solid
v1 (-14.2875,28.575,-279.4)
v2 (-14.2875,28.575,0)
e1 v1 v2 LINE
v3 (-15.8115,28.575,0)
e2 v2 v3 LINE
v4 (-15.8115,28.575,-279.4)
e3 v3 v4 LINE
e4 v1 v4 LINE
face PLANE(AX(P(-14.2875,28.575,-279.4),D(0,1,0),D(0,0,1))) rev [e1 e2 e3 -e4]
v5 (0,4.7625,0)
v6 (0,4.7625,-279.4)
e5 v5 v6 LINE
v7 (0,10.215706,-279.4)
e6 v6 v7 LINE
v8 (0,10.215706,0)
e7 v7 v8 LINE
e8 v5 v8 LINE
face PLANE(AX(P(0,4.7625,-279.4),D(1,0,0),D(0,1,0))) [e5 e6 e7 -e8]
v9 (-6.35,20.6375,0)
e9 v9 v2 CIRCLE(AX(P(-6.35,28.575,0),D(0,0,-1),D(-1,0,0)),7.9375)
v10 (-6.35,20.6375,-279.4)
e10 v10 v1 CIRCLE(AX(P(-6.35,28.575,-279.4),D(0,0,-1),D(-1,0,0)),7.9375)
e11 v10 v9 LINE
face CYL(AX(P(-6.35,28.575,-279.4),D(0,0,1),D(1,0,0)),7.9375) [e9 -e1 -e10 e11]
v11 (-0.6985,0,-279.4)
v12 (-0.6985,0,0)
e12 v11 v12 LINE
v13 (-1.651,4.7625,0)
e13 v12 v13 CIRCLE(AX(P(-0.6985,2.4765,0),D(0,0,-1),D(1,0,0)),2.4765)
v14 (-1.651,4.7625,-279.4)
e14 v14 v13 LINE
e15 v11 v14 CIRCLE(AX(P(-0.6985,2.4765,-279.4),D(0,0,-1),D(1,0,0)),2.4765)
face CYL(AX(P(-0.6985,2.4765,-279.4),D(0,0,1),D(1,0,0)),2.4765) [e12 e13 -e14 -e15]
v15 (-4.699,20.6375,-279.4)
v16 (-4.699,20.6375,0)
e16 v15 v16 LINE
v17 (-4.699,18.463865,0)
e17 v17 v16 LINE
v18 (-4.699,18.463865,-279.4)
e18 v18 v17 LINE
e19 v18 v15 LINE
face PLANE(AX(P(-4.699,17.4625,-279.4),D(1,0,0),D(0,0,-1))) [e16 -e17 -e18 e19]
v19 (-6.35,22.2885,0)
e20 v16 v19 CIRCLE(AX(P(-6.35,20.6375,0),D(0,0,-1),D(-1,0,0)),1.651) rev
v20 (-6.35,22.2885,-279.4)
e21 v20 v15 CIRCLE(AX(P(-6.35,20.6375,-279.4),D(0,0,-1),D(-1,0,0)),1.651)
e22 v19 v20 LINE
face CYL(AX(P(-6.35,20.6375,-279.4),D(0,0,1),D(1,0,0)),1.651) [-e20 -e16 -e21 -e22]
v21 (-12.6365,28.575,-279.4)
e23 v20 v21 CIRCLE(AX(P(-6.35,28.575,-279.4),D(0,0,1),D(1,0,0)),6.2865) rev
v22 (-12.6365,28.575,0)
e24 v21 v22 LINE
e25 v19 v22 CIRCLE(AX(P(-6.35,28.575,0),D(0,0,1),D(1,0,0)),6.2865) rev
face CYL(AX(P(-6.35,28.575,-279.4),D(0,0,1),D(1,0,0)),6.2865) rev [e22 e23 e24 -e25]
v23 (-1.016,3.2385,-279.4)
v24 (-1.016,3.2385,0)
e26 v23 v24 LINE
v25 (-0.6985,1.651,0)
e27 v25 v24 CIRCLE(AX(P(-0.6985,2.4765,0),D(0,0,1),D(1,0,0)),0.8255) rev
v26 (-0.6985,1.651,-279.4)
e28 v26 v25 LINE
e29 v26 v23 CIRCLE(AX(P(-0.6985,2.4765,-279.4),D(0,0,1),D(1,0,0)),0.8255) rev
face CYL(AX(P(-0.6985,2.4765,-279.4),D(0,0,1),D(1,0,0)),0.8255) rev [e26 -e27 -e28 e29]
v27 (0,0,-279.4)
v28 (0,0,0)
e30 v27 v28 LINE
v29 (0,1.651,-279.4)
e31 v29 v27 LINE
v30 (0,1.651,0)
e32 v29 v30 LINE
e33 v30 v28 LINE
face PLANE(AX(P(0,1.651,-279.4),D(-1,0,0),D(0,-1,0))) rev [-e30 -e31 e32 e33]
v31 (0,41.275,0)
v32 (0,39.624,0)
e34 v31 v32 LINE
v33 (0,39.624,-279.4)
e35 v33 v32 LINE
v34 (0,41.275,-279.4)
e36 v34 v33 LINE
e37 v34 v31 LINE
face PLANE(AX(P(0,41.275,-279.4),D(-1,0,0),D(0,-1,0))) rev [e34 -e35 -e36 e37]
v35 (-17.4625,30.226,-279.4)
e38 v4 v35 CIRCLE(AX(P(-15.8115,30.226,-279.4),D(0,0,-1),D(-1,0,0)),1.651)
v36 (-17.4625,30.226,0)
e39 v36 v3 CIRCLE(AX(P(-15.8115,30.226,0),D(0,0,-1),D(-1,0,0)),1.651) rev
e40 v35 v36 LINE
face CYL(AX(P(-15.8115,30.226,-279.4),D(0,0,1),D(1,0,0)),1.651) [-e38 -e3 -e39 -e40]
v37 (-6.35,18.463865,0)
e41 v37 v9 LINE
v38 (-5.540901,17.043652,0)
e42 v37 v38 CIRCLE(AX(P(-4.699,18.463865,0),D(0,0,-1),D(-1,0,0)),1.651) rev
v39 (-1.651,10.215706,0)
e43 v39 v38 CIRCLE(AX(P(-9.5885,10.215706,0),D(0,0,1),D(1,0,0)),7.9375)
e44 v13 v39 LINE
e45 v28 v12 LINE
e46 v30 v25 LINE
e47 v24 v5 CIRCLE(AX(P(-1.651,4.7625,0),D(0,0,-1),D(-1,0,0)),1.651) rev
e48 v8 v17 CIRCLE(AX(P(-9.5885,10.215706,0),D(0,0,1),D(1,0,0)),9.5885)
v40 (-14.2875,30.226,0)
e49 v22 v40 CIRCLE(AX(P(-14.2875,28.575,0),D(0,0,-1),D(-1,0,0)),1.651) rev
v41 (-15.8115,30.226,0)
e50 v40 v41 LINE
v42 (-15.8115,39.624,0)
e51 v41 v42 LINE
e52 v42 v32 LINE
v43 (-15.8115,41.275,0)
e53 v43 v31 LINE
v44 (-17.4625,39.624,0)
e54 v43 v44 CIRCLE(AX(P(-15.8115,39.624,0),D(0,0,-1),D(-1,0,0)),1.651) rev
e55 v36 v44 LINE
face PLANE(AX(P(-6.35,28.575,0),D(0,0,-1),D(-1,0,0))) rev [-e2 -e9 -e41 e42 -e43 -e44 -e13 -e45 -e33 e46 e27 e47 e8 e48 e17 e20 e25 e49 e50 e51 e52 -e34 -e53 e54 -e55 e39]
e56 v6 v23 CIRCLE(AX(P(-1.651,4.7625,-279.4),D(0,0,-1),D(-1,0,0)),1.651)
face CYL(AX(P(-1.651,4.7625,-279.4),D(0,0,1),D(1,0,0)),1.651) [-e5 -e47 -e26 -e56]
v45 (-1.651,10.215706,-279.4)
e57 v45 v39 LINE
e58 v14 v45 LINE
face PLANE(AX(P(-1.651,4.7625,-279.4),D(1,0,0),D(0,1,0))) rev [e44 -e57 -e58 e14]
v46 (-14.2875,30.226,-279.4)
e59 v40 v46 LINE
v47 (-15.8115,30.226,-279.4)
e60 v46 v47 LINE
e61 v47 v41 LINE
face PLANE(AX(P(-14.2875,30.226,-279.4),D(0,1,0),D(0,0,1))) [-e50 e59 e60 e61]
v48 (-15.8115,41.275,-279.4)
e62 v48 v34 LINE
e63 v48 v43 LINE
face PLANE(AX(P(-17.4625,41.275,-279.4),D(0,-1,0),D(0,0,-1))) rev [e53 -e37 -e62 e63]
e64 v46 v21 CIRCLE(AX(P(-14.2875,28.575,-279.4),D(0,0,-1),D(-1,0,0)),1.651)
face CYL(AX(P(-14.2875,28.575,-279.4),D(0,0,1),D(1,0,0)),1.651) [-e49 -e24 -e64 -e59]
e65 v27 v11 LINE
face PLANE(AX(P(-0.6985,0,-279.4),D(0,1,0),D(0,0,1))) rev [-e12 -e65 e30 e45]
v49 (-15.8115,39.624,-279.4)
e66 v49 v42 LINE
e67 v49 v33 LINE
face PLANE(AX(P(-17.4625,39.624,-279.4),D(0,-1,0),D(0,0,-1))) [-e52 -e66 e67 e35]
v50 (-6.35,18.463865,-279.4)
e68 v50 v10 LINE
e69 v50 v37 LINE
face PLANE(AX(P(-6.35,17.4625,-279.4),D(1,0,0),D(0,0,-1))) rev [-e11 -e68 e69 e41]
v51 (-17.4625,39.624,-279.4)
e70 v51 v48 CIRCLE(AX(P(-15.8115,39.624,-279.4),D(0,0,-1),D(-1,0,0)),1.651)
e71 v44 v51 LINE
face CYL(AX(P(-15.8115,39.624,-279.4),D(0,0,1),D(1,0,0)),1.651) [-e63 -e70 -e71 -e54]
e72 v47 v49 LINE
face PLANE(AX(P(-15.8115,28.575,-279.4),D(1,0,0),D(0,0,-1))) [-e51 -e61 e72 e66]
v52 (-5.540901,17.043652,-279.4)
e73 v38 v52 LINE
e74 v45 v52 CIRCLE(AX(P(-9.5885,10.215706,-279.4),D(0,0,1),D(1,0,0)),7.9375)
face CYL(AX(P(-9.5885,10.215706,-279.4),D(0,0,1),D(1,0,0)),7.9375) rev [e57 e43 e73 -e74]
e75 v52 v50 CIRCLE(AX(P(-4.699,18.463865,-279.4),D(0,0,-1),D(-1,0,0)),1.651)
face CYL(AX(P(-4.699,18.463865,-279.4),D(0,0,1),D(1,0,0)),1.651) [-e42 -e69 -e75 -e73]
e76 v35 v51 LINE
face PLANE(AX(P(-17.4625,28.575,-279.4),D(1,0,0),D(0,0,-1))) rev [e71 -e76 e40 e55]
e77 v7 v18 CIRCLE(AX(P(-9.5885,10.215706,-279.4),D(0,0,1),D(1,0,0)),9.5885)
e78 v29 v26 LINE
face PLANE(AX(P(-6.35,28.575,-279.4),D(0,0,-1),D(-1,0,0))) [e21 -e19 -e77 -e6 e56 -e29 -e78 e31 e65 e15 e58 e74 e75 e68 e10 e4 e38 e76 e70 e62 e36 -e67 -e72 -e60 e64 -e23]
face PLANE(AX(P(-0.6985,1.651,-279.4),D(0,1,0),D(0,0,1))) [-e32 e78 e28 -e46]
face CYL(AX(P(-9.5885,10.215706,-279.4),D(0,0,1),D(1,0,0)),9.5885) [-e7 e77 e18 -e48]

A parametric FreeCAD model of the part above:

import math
import FreeCAD as App
import Part
import Sketcher

V = App.Vector
Q = App.Units.Quantity


def edges_at(feature, points):
    """Names of the edges that pass closest to the given points."""
    edges = feature.Shape.Edges
    near = lambda p: min(range(len(edges)), key=lambda i: edges[i].distToShape(Part.Vertex(*p))[0])
    return sorted({f"Edge{near(p) + 1}" for p in points})

doc = App.newDocument("Part")
params = doc.addObject("Spreadsheet::Sheet", "Params")
for row, (alias, value) in enumerate([
    ("sketch1_height", "0.5 in"),
    ("sketch1_radius", "0.3125 in"),
    ("sketch1_height2", "0.37 in"),
    ("sketch1_width", "0.6875 in"),
    ("sketch1_width2", "0.125 in"),
    ("pad1_length", "11 in"),
    ("fillet_radius", "0.065 in"),
], start=1):
    params.set(f"A{row}", alias)
    params.set(f"B{row}", "=" + value)
    params.setAlias(f"B{row}", alias)

body = doc.addObject("PartDesign::Body", "Body")

# Sketch on XY plane
sketch1 = body.newObject("Sketcher::SketchObject", "Sketch")
sketch1.AttachmentSupport = (doc.getObject("XY_Plane"), [""])
sketch1.MapMode = "FlatFace"
sketch1.addGeometry([
    Part.LineSegment(V(-0.6985, 0, 0), V(0, 0, 0)),  # 0
    Part.LineSegment(V(0, 0, 0), V(0, 1.651, 0)),  # 1
    Part.LineSegment(V(0, 1.651, 0), V(-0.6985, 1.651, 0)),  # 2
    Part.ArcOfCircle(Part.Circle(V(-0.6985, 2.4765, 0), V(0, 0, 1), 0.8255), math.radians(32.204221), math.radians(270.00001)),  # 3
    Part.LineSegment(V(0, 2.916441, 0), V(0, 10.215706, 0)),  # 4
    Part.ArcOfCircle(Part.Circle(V(-9.588498, 10.215707, 0), V(0, 0, 1), 9.588498), math.radians(-0.000007), math.radians(59.340587)),  # 5
    Part.LineSegment(V(-4.699, 18.463865, 0), V(-4.699, 22.509171, 0)),  # 6
    Part.ArcOfCircle(Part.Circle(V(-6.35, 28.575, 0), V(0, 0, 1), 6.2865), math.radians(164.774043), math.radians(285.225957)),  # 7
    Part.LineSegment(V(-12.415829, 30.226, 0), V(-15.8115, 30.226, 0)),  # 8
    Part.LineSegment(V(-15.8115, 30.226, 0), V(-15.8115, 39.624, 0)),  # 9
    Part.LineSegment(V(-15.8115, 39.624, 0), V(0, 39.624, 0)),  # 10
    Part.LineSegment(V(0, 39.624, 0), V(0, 41.275, 0)),  # 11
    Part.LineSegment(V(0, 41.275, 0), V(-17.4625, 41.275, 0)),  # 12
    Part.LineSegment(V(-17.4625, 41.275, 0), V(-17.4625, 28.575, 0)),  # 13
    Part.LineSegment(V(-17.4625, 28.575, 0), V(-14.2875, 28.575, 0)),  # 14
    Part.ArcOfCircle(Part.Circle(V(-6.35, 28.575, 0), V(0, 0, 1), 7.9375), math.radians(-179.999998), math.radians(-90.000002)),  # 15
    Part.LineSegment(V(-6.35, 20.6375, 0), V(-6.35, 17.4625, 0)),  # 16
    Part.ArcOfCircle(Part.Circle(V(-9.5885, 10.215706, 0), V(0, 0, 1), 7.9375), math.radians(0.000002), math.radians(65.920739)),  # 17
    Part.LineSegment(V(-1.651, 10.215706, 0), V(-1.651, 4.7625, 0)),  # 18
    Part.ArcOfCircle(Part.Circle(V(-0.6985, 2.4765, 0), V(0, 0, 1), 2.4765), math.radians(112.619864), math.radians(270.000001)),  # 19
], False)
sketch1.addConstraint([
    Sketcher.Constraint("Coincident", 0, 2, 1, 1),
    Sketcher.Constraint("Coincident", 1, 2, 2, 1),
    Sketcher.Constraint("Tangent", 2, 2, 3, 2),
    Sketcher.Constraint("Coincident", 3, 1, 4, 1),
    Sketcher.Constraint("Tangent", 4, 2, 5, 1),
    Sketcher.Constraint("Coincident", 5, 2, 6, 1),
    Sketcher.Constraint("Coincident", 6, 2, 7, 2),
    Sketcher.Constraint("Coincident", 7, 1, 8, 1),
    Sketcher.Constraint("Coincident", 8, 2, 9, 1),
    Sketcher.Constraint("Coincident", 9, 2, 10, 1),
    Sketcher.Constraint("Coincident", 10, 2, 11, 1),
    Sketcher.Constraint("Coincident", 11, 2, 12, 1),
    Sketcher.Constraint("Coincident", 12, 2, 13, 1),
    Sketcher.Constraint("Coincident", 13, 2, 14, 1),
    Sketcher.Constraint("Coincident", 14, 2, 15, 1),
    Sketcher.Constraint("Coincident", 15, 2, 16, 1),
    Sketcher.Constraint("Coincident", 16, 2, 17, 2),
    Sketcher.Constraint("Tangent", 17, 1, 18, 1),
    Sketcher.Constraint("Coincident", 18, 2, 19, 1),
    Sketcher.Constraint("Tangent", 19, 2, 0, 1),
    Sketcher.Constraint("Horizontal", 0),
    Sketcher.Constraint("Vertical", 1),
    Sketcher.Constraint("Horizontal", 2),
    Sketcher.Constraint("Vertical", 4),
    Sketcher.Constraint("Vertical", 6),
    Sketcher.Constraint("Horizontal", 8),
    Sketcher.Constraint("Vertical", 9),
    Sketcher.Constraint("Horizontal", 10),
    Sketcher.Constraint("Vertical", 11),
    Sketcher.Constraint("Horizontal", 12),
    Sketcher.Constraint("Vertical", 13),
    Sketcher.Constraint("Horizontal", 14),
    Sketcher.Constraint("Vertical", 16),
    Sketcher.Constraint("Vertical", 18),
    Sketcher.Constraint("Coincident", 0, 2, -1, 1),
    Sketcher.Constraint("Coincident", 15, 3, 7, 3),
    Sketcher.Constraint("Coincident", 17, 3, 5, 3),
    Sketcher.Constraint("Coincident", 19, 3, 3, 3),
    Sketcher.Constraint("Equal", 15, 17),
    Sketcher.Constraint("PointOnObject", 3, 1, -2),
    Sketcher.Constraint("PointOnObject", 10, 2, -2),
    Sketcher.Constraint("Horizontal", 15, 3, 13, 2),
    Sketcher.Constraint("Vertical", 7, 3, 15, 2),
    Sketcher.Constraint("Equal", 1, 11),
    Sketcher.Constraint("Equal", 14, 16),
    Sketcher.Constraint("DistanceY", 13, 2, 13, 1, Q("0.5 in")),
    Sketcher.Constraint("Radius", 15, Q("0.3125 in")),
    Sketcher.Constraint("DistanceY", 9, 1, 9, 2, Q("0.37 in")),
    Sketcher.Constraint("Radius", 3, Q("0.0325 in")),
    Sketcher.Constraint("Radius", 5, Q("0.3774999 in")),
    Sketcher.Constraint("Radius", 7, Q("0.2475 in")),
    Sketcher.Constraint("Radius", 19, Q("0.0975 in")),
    Sketcher.Constraint("DistanceX", 12, 2, 12, 1, Q("0.6875 in")),
    Sketcher.Constraint("DistanceX", 14, 1, 14, 2, Q("0.125 in")),
    Sketcher.Constraint("DistanceY", -1, 1, 7, 1, Q("1.19 in")),
    Sketcher.Constraint("DistanceX", 5, 3, 3, 3, Q("0.3499999 in")),
    Sketcher.Constraint("DistanceX", 8, 2, 14, 2, Q("0.06 in")),
    Sketcher.Constraint("DistanceX", 5, 2, -1, 1, Q("0.185 in")),
])
sketch1.setExpression("Constraints[45]", "Params.sketch1_height")
sketch1.setExpression("Constraints[46]", "Params.sketch1_radius")
sketch1.setExpression("Constraints[47]", "Params.sketch1_height2")
sketch1.setExpression("Constraints[52]", "Params.sketch1_width")
sketch1.setExpression("Constraints[53]", "Params.sketch1_width2")
pad1 = body.newObject("PartDesign::Pad", "Pad")
pad1.Profile = sketch1
pad1.setExpression("Length", "Params.pad1_length")
pad1.Reversed = True
doc.recompute()

fillet = body.newObject("PartDesign::Fillet", "Fillet")
fillet.Base = (pad1, edges_at(pad1, [
    (-12.416, 30.226, -139.7),
    (-4.699, 22.509, -139.7),
    (0, 2.916, -139.7),
    (-6.35, 17.462, -139.7),
    (-17.462, 28.575, -139.7),
    (-17.462, 41.275, -139.7),
]))
fillet.setExpression("Radius", "Params.fillet_radius")

doc.recompute()
